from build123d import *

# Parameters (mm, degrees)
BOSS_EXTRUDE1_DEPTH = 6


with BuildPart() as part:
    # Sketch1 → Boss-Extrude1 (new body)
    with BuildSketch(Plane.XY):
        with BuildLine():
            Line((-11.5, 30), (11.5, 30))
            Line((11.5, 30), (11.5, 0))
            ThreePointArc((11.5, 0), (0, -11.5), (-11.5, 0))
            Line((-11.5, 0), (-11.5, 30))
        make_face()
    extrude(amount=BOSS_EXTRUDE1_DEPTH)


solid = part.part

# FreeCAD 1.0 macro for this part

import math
import FreeCAD as App
import Part
import Sketcher

doc = App.newDocument("Part")
body = doc.addObject("PartDesign::Body", "Body")

# Sketch on XY plane
sketch1 = doc.addObject("Sketcher::SketchObject", "Sketch")
body.addObject(sketch1)
sketch1.AttachmentSupport = (doc.XY_Plane, [""])
sketch1.MapMode = "FlatFace"
sketch1.addGeometry([
    Part.LineSegment(App.Vector(11.5, 30, 0), App.Vector(-11.5, 30, 0)),
    Part.LineSegment(App.Vector(-11.5, 30, 0), App.Vector(-11.5, 0, 0)),
    Part.ArcOfCircle(Part.Circle(App.Vector(0, 0, 0), App.Vector(0, 0, 1), 11.5), math.radians(180), math.radians(360)),
    Part.LineSegment(App.Vector(11.5, 0, 0), App.Vector(11.5, 30, 0)),
], False)
sketch1.addConstraint([
    Sketcher.Constraint("Coincident", 0, 2, 1, 1),
    Sketcher.Constraint("Tangent", 1, 2, 2, 1),
    Sketcher.Constraint("Tangent", 2, 2, 3, 1),
    Sketcher.Constraint("Coincident", 3, 2, 0, 1),
    Sketcher.Constraint("Horizontal", 0),
    Sketcher.Constraint("Vertical", 1),
    Sketcher.Constraint("Vertical", 3),
    Sketcher.Constraint("Coincident", 2, 3, -1, 1),
    Sketcher.Constraint("Radius", 2, 11.5),
    Sketcher.Constraint("DistanceY", 1, 2, 1, 1, 30.0),
])
pad1 = doc.addObject("PartDesign::Pad", "Pad")
body.addObject(pad1)
pad1.Profile = sketch1
pad1.Length = 6

doc.recompute()
